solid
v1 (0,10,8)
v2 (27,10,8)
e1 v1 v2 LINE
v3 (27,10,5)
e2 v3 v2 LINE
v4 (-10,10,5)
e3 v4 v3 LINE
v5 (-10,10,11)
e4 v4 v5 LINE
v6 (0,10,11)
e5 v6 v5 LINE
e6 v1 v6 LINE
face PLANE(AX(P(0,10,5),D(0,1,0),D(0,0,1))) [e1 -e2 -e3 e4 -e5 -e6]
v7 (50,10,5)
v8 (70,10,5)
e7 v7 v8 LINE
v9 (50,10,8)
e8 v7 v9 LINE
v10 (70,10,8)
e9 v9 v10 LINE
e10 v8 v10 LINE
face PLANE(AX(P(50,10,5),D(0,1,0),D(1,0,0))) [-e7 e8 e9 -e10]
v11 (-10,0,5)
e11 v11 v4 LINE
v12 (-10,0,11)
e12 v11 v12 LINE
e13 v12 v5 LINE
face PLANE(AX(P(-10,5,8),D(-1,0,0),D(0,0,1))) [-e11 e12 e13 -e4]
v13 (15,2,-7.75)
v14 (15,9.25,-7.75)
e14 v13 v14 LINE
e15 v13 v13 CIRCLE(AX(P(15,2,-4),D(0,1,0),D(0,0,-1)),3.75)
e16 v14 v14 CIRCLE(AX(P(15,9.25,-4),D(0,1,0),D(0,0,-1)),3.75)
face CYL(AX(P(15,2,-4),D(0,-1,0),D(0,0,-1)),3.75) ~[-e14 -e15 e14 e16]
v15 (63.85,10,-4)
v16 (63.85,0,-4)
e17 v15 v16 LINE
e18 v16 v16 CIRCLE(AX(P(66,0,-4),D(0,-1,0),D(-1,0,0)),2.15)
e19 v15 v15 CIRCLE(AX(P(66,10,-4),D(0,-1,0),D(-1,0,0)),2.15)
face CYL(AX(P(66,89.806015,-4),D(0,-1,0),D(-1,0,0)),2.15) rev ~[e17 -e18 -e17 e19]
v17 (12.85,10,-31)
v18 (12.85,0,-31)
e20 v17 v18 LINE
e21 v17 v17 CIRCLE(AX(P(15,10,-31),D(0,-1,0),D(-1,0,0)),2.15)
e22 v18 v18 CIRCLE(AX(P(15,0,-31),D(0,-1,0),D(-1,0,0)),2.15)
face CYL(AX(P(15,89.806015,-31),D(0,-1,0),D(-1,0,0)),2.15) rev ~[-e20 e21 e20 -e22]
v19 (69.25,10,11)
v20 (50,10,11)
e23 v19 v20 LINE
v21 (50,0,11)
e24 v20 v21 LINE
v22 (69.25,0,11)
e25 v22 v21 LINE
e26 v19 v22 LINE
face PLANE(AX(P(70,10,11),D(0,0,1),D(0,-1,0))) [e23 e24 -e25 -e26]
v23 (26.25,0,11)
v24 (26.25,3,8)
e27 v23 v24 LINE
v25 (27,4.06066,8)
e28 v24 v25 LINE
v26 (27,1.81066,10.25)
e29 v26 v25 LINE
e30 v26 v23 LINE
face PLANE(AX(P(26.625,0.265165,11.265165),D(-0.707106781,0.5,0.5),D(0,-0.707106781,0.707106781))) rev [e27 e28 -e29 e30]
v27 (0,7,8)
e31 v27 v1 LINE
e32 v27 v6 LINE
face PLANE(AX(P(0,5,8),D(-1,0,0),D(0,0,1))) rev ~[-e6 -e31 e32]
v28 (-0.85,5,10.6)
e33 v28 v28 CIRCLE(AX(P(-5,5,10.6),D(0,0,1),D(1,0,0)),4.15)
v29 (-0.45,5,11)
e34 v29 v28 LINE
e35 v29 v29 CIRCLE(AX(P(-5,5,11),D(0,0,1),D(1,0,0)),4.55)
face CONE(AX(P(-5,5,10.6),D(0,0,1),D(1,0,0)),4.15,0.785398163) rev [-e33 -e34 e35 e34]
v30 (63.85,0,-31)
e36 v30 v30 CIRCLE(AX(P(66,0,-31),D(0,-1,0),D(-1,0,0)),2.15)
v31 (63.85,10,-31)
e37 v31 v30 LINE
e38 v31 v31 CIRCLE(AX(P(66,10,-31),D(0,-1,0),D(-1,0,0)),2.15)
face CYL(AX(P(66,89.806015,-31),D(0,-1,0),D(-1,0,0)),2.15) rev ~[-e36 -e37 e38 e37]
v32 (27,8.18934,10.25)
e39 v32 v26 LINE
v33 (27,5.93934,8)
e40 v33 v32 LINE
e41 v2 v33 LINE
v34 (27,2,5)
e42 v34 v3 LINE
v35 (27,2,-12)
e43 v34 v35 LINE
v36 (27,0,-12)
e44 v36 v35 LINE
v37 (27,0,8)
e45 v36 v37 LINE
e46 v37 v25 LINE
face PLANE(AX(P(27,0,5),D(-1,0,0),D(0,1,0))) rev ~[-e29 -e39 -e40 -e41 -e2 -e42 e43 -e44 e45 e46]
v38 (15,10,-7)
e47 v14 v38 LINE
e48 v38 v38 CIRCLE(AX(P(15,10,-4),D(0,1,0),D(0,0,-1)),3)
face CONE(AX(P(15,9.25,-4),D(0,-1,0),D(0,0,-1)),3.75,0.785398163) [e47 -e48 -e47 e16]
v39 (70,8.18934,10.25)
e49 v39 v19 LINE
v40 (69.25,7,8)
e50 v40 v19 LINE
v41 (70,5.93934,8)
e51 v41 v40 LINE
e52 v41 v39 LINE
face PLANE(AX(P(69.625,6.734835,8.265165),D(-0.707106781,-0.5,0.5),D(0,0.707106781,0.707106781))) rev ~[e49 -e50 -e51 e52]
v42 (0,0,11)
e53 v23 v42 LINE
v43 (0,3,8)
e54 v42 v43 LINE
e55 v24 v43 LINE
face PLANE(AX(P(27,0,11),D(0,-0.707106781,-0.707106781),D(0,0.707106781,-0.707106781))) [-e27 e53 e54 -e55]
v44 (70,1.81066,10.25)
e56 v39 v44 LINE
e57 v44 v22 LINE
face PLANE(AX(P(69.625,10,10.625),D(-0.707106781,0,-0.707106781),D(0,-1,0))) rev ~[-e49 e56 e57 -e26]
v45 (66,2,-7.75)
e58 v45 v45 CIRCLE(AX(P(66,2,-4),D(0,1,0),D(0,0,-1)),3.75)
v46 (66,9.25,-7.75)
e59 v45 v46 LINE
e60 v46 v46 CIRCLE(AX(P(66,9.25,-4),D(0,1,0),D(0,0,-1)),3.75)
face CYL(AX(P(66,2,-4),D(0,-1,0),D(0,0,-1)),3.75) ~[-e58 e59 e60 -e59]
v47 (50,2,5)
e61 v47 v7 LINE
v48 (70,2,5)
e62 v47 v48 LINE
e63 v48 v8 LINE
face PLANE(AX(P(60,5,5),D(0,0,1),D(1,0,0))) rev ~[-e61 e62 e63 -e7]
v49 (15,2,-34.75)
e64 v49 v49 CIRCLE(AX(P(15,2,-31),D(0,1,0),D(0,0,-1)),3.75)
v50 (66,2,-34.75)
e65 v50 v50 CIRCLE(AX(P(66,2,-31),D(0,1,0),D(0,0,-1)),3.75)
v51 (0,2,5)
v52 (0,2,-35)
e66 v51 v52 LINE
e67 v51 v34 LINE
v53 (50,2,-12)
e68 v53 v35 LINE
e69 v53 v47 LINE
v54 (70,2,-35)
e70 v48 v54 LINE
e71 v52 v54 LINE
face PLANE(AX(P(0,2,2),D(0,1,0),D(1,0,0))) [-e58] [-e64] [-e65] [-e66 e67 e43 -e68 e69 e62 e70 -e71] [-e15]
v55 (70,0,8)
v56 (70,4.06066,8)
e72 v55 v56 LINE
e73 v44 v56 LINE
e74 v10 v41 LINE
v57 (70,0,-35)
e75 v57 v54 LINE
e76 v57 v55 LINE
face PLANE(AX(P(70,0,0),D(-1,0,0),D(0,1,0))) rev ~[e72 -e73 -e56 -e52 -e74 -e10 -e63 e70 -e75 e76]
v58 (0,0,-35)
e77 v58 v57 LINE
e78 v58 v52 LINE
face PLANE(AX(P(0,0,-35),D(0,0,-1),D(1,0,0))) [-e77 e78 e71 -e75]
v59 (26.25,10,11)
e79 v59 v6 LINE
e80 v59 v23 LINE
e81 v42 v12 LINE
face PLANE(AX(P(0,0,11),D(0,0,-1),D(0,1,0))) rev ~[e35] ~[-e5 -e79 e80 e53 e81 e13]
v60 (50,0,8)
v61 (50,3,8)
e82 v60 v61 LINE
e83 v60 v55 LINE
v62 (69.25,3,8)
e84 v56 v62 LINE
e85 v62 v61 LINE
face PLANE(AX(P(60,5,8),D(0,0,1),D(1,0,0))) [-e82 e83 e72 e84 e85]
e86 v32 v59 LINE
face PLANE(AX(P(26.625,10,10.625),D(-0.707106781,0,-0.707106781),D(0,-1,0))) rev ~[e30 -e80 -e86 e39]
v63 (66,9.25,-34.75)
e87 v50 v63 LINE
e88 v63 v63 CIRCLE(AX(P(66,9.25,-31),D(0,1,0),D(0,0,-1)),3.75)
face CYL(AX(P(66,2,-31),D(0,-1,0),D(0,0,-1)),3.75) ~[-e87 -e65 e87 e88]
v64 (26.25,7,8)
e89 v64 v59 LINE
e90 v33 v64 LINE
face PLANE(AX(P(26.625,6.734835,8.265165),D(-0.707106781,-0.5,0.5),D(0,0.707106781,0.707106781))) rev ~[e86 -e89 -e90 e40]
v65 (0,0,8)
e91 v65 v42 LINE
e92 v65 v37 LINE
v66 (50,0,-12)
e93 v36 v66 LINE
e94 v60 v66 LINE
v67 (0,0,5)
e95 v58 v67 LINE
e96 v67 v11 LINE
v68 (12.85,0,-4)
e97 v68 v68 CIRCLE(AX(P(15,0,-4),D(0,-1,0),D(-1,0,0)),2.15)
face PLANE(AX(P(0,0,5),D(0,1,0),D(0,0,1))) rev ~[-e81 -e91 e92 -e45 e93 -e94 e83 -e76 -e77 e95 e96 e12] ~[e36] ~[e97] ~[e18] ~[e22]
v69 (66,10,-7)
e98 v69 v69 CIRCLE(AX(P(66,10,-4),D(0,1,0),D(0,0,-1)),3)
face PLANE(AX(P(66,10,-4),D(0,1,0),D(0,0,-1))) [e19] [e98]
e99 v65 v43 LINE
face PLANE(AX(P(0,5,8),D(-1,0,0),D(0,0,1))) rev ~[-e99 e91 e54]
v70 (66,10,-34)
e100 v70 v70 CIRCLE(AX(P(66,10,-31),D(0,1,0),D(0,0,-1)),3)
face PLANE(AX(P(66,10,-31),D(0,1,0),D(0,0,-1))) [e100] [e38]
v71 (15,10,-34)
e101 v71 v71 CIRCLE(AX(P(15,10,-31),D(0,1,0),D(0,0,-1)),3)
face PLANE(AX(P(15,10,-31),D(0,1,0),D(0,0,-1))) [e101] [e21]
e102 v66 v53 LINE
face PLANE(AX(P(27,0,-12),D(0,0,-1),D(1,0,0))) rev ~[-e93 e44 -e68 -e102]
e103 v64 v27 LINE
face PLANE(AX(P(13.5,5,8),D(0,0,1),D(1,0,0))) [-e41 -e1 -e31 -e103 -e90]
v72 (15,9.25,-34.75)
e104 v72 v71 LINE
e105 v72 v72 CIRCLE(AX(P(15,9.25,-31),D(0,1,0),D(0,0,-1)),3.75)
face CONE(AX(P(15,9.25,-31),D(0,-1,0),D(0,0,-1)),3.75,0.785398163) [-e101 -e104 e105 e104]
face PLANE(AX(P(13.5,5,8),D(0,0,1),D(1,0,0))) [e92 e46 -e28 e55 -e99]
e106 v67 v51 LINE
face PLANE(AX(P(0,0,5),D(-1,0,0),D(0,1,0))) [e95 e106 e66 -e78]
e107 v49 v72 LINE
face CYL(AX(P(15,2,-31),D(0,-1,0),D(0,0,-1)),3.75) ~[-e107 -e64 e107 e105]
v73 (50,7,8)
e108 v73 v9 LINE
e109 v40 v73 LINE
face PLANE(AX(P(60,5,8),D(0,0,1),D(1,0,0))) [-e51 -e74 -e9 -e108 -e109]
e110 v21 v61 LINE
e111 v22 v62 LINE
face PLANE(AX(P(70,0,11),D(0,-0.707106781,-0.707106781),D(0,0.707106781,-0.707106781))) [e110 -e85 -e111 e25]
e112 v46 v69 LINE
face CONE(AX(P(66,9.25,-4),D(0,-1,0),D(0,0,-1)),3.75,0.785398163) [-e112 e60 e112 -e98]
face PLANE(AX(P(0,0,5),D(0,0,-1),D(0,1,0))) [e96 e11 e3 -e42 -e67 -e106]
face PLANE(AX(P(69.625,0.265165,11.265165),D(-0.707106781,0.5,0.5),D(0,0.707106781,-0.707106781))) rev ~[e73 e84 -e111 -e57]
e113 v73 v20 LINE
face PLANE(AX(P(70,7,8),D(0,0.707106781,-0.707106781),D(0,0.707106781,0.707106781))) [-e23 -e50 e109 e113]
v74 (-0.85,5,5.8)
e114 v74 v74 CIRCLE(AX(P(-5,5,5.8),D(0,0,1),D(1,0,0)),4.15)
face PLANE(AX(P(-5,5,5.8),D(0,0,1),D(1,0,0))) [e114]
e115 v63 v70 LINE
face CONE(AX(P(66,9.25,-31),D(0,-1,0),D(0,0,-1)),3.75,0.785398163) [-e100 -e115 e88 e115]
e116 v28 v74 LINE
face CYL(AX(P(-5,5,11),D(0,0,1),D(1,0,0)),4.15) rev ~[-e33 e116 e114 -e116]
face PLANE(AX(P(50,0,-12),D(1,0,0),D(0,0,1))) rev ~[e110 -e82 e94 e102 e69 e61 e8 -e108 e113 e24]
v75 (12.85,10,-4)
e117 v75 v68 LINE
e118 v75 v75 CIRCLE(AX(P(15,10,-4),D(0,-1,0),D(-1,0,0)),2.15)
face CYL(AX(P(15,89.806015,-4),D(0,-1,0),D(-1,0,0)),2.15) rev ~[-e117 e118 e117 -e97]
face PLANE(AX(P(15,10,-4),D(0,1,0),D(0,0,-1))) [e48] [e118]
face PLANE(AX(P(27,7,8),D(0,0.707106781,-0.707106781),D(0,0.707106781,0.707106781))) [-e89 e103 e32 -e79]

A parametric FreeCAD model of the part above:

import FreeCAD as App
import Part
import Sketcher
from FreeCAD import Vector


def edges_at(feature, points):
    """Names of the edges that pass closest to the given points."""
    edges = feature.Shape.Edges
    near = lambda p: min(range(len(edges)), key=lambda i: edges[i].distToShape(Part.Vertex(*p))[0])
    return sorted({f"Edge{near(p) + 1}" for p in points})


def add_polygon(sketch, points):
    """Adds a closed chain of lines whose ends are joined by coincident constraints."""
    first, n = sketch.GeometryCount, len(points)
    for a, b in zip(points, points[1:] + points[:1]):
        sketch.addGeometry(Part.LineSegment(App.Vector(*a, 0), App.Vector(*b, 0)), False)
    for i in range(n):
        sketch.addConstraint(Sketcher.Constraint("Coincident", first + i, 2, first + (i + 1) % n, 1))

doc = App.newDocument("Part")
params = doc.addObject("Spreadsheet::Sheet", "Params")
for row, (alias, value) in enumerate([
    ("sketch1_width", "70 mm"),
    ("sketch1_height", "35 mm"),
    ("pad1_length", "2 mm"),
    ("sketch2_diameter", "7.5 mm"),
    ("pad2_length", "8 mm"),
    ("sketch3_width", "70 mm"),
    ("sketch3_height", "2 mm"),
    ("pad3_length", "2 mm"),
    ("sketch4_diameter", "4.3 mm"),
    ("hole_diameter", "4.3 mm"),
    ("chamfer_size", "0.75 mm"),
    ("sketch5_width", "23 mm"),
    ("sketch5_height", "14 mm"),
    ("sketch6_width", "27 mm"),
    ("sketch6_width2", "20 mm"),
    ("sketch6_height", "2 mm"),
    ("pad4_length", "3 mm"),
    ("sketch7_width", "27 mm"),
    ("sketch7_width2", "20 mm"),
    ("sketch7_height", "10 mm"),
    ("pad5_length", "3 mm"),
    ("sketch8_width", "10 mm"),
    ("sketch8_width2", "4 mm"),
    ("pad6_length", "20 mm"),
    ("sketch9_width", "10 mm"),
    ("sketch9_width2", "4 mm"),
    ("pad7_length", "27 mm"),
    ("chamfer2_size", "0.75 mm"),
    ("sketch10_width", "10 mm"),
    ("sketch10_height", "6 mm"),
    ("pad8_length", "10 mm"),
    ("sketch11_diameter", "8.3 mm"),
    ("pocket2_length", "5.2 mm"),
    ("chamfer3_size", "0.4 mm"),
], start=1):
    params.set(f"A{row}", alias)
    params.set(f"B{row}", "=" + value)
    params.setAlias(f"B{row}", alias)

body = doc.addObject("PartDesign::Body", "Body")

sketch1 = body.newObject("Sketcher::SketchObject", "Sketch")
sketch1.AttachmentSupport = (doc.getObject("XZ_Plane"), [""])
sketch1.MapMode = "FlatFace"
add_polygon(sketch1, [(0, -35), (0, 0), (70, 0), (70, -35)])
sketch1.addConstraint([
    Sketcher.Constraint("Vertical", 0),
    Sketcher.Constraint("Horizontal", 1),
    Sketcher.Constraint("Vertical", 2),
    Sketcher.Constraint("Horizontal", 3),
    Sketcher.Constraint("Coincident", 0, 2, -1, 1),
    Sketcher.Constraint("DistanceX", 1, 1, 1, 2, 70.0),
    Sketcher.Constraint("DistanceY", 0, 1, 0, 2, 35.0),
])
sketch1.setExpression("Constraints[9]", "Params.sketch1_width")
sketch1.setExpression("Constraints[10]", "Params.sketch1_height")
pad1 = body.newObject("PartDesign::Pad", "Pad")
pad1.Profile = sketch1
pad1.setExpression("Length", "Params.pad1_length")
pad1.Reversed = True

sketch2 = body.newObject("Sketcher::SketchObject", "Sketch001")
sketch2.AttachmentSupport = (doc.getObject("XZ_Plane"), [""])
sketch2.MapMode = "FlatFace"
sketch2.AttachmentOffset = App.Placement(Vector(0, 0, -2), App.Rotation())
sketch2.addGeometry([
    Part.Circle(Vector(66, -31, 0), Vector(0, 0, 1), 3.8),
    Part.Circle(Vector(15, -31, 0), Vector(0, 0, 1), 3.8),
    Part.Circle(Vector(15, -4, 0), Vector(0, 0, 1), 3.8),
    Part.Circle(Vector(66, -4, 0), Vector(0, 0, 1), 3.8),
], False)
sketch2.addConstraint([
    Sketcher.Constraint("Equal", 0, 1),
    Sketcher.Constraint("Equal", 1, 2),
    Sketcher.Constraint("Equal", 2, 3),
    Sketcher.Constraint("Horizontal", 0, 3, 1, 3),
    Sketcher.Constraint("Horizontal", 2, 3, 3, 3),
    Sketcher.Constraint("Vertical", 1, 3, 2, 3),
    Sketcher.Constraint("Vertical", 0, 3, 3, 3),
    Sketcher.Constraint("Diameter", 0, 7.5),
    Sketcher.Constraint("DistanceX", -1, 1, 0, 3, 66.0),
    Sketcher.Constraint("DistanceY", 0, 3, -1, 1, 31.0),
    Sketcher.Constraint("DistanceX", -1, 1, 1, 3, 15.0),
    Sketcher.Constraint("DistanceY", 2, 3, -1, 1, 4.0),
])
sketch2.setExpression("Constraints[7]", "Params.sketch2_diameter")
pad2 = body.newObject("PartDesign::Pad", "Pad001")
pad2.Profile = sketch2
pad2.setExpression("Length", "Params.pad2_length")
pad2.Reversed = True

sketch3 = body.newObject("Sketcher::SketchObject", "Sketch002")
sketch3.AttachmentSupport = (doc.getObject("XY_Plane"), [""])
sketch3.MapMode = "FlatFace"
add_polygon(sketch3, [(0, 2), (0, 0), (70, 0), (70, 2)])
sketch3.addConstraint([
    Sketcher.Constraint("Vertical", 0),
    Sketcher.Constraint("Horizontal", 1),
    Sketcher.Constraint("Vertical", 2),
    Sketcher.Constraint("Horizontal", 3),
    Sketcher.Constraint("Coincident", 0, 2, -1, 1),
    Sketcher.Constraint("DistanceX", 1, 1, 1, 2, 70.0),
    Sketcher.Constraint("DistanceY", 0, 2, 0, 1, 2.0),
])
sketch3.setExpression("Constraints[9]", "Params.sketch3_width")
sketch3.setExpression("Constraints[10]", "Params.sketch3_height")
pad3 = body.newObject("PartDesign::Pad", "Pad002")
pad3.Profile = sketch3
pad3.setExpression("Length", "Params.pad3_length")

sketch4 = body.newObject("Sketcher::SketchObject", "Sketch003")
sketch4.AttachmentSupport = (doc.getObject("XZ_Plane"), [""])
sketch4.MapMode = "FlatFace"
sketch4.AttachmentOffset = App.Placement(Vector(0, 0, -10), App.Rotation())
sketch4.addGeometry([
    Part.Circle(Vector(66, -31, 0), Vector(0, 0, 1), 2.1),
    Part.Circle(Vector(15, -31, 0), Vector(0, 0, 1), 2.1),
    Part.Circle(Vector(15, -4, 0), Vector(0, 0, 1), 2.1),
    Part.Circle(Vector(66, -4, 0), Vector(0, 0, 1), 2.1),
], False)
sketch4.addConstraint([
    Sketcher.Constraint("Equal", 0, 1),
    Sketcher.Constraint("Equal", 1, 2),
    Sketcher.Constraint("Equal", 2, 3),
    Sketcher.Constraint("Horizontal", 0, 3, 1, 3),
    Sketcher.Constraint("Horizontal", 2, 3, 3, 3),
    Sketcher.Constraint("Vertical", 1, 3, 2, 3),
    Sketcher.Constraint("Vertical", 0, 3, 3, 3),
    Sketcher.Constraint("Diameter", 0, 4.3),
    Sketcher.Constraint("DistanceX", -1, 1, 0, 3, 66.0),
    Sketcher.Constraint("DistanceY", 0, 3, -1, 1, 31.0),
    Sketcher.Constraint("DistanceX", -1, 1, 1, 3, 15.0),
    Sketcher.Constraint("DistanceY", 2, 3, -1, 1, 4.0),
])
sketch4.setExpression("Constraints[7]", "Params.sketch4_diameter")
doc.recompute()
hole = body.newObject("PartDesign::Hole", "Hole")
hole.Profile = sketch4
hole.ThreadType = "None"
hole.setExpression("Diameter", "Params.hole_diameter")
hole.DepthType = "ThroughAll"
hole.Reversed = True
doc.recompute()

chamfer = body.newObject("PartDesign::Chamfer", "Chamfer")
chamfer.Base = (hole, edges_at(hole, [
    (66, 10, -27.25),
    (15, 10, -27.25),
    (15, 10, -0.25),
    (66, 10, -0.25),
]))
chamfer.setExpression("Size", "Params.chamfer_size")

sketch5 = body.newObject("Sketcher::SketchObject", "Sketch004")
sketch5.AttachmentSupport = (doc.getObject("XZ_Plane"), [""])
sketch5.MapMode = "FlatFace"
add_polygon(sketch5, [(27, 2), (27, -12), (50, -12), (50, 2)])
sketch5.addConstraint([
    Sketcher.Constraint("Vertical", 0),
    Sketcher.Constraint("Horizontal", 1),
    Sketcher.Constraint("Vertical", 2),
    Sketcher.Constraint("Horizontal", 3),
    Sketcher.Constraint("DistanceX", 1, 1, 1, 2, 23.0),
    Sketcher.Constraint("DistanceY", 0, 2, 0, 1, 14.0),
    Sketcher.Constraint("DistanceX", -1, 1, 0, 2, 27.0),
    Sketcher.Constraint("DistanceY", 0, 2, -1, 1, 12.0),
])
sketch5.setExpression("Constraints[8]", "Params.sketch5_width")
sketch5.setExpression("Constraints[9]", "Params.sketch5_height")
pocket1 = body.newObject("PartDesign::Pocket", "Pocket")
pocket1.Profile = sketch5
pocket1.Type = "ThroughAll"

sketch6 = body.newObject("Sketcher::SketchObject", "Sketch005")
sketch6.AttachmentSupport = (doc.getObject("XY_Plane"), [""])
sketch6.MapMode = "FlatFace"
sketch6.AttachmentOffset = App.Placement(Vector(0, 0, 2), App.Rotation())
add_polygon(sketch6, [(0, 2), (0, 0), (27, 0), (27, 2)])
add_polygon(sketch6, [(50, 2), (50, 0), (70, 0), (70, 2)])
sketch6.addConstraint([
    Sketcher.Constraint("Vertical", 0),
    Sketcher.Constraint("Horizontal", 1),
    Sketcher.Constraint("Vertical", 2),
    Sketcher.Constraint("Horizontal", 3),
    Sketcher.Constraint("Vertical", 4),
    Sketcher.Constraint("Horizontal", 5),
    Sketcher.Constraint("Vertical", 6),
    Sketcher.Constraint("Horizontal", 7),
    Sketcher.Constraint("Coincident", 0, 2, -1, 1),
    Sketcher.Constraint("PointOnObject", 4, 2, -1),
    Sketcher.Constraint("Horizontal", 3, 2, 6, 2),
    Sketcher.Constraint("DistanceX", 1, 1, 1, 2, 27.0),
    Sketcher.Constraint("DistanceX", 5, 1, 5, 2, 20.0),
    Sketcher.Constraint("DistanceY", 0, 2, 0, 1, 2.0),
    Sketcher.Constraint("DistanceX", -1, 1, 4, 2, 50.0),
])
sketch6.setExpression("Constraints[19]", "Params.sketch6_width")
sketch6.setExpression("Constraints[20]", "Params.sketch6_width2")
sketch6.setExpression("Constraints[21]", "Params.sketch6_height")
pad4 = body.newObject("PartDesign::Pad", "Pad003")
pad4.Profile = sketch6
pad4.setExpression("Length", "Params.pad4_length")

sketch7 = body.newObject("Sketcher::SketchObject", "Sketch006")
sketch7.AttachmentSupport = (doc.getObject("XY_Plane"), [""])
sketch7.MapMode = "FlatFace"
sketch7.AttachmentOffset = App.Placement(Vector(0, 0, 5), App.Rotation())
add_polygon(sketch7, [(0, 10), (0, 0), (27, 0), (27, 10)])
add_polygon(sketch7, [(50, 10), (50, 0), (70, 0), (70, 10)])
sketch7.addConstraint([
    Sketcher.Constraint("Vertical", 0),
    Sketcher.Constraint("Horizontal", 1),
    Sketcher.Constraint("Vertical", 2),
    Sketcher.Constraint("Horizontal", 3),
    Sketcher.Constraint("Vertical", 4),
    Sketcher.Constraint("Horizontal", 5),
    Sketcher.Constraint("Vertical", 6),
    Sketcher.Constraint("Horizontal", 7),
    Sketcher.Constraint("Coincident", 0, 2, -1, 1),
    Sketcher.Constraint("PointOnObject", 4, 2, -1),
    Sketcher.Constraint("Horizontal", 3, 2, 6, 2),
    Sketcher.Constraint("DistanceX", 1, 1, 1, 2, 27.0),
    Sketcher.Constraint("DistanceX", 5, 1, 5, 2, 20.0),
    Sketcher.Constraint("DistanceY", 0, 2, 0, 1, 10.0),
    Sketcher.Constraint("DistanceX", -1, 1, 4, 2, 50.0),
])
sketch7.setExpression("Constraints[19]", "Params.sketch7_width")
sketch7.setExpression("Constraints[20]", "Params.sketch7_width2")
sketch7.setExpression("Constraints[21]", "Params.sketch7_height")
pad5 = body.newObject("PartDesign::Pad", "Pad004")
pad5.Profile = sketch7
pad5.setExpression("Length", "Params.pad5_length")

sketch8 = body.newObject("Sketcher::SketchObject", "Sketch007")
sketch8.AttachmentSupport = (doc.getObject("YZ_Plane"), [""])
sketch8.MapMode = "FlatFace"
sketch8.AttachmentOffset = App.Placement(Vector(0, 0, 70), App.Rotation())
add_polygon(sketch8, [(7, 8), (10, 11), (0, 11), (3, 8)])
sketch8.addConstraint([
    Sketcher.Constraint("Horizontal", 1),
    Sketcher.Constraint("Horizontal", 3),
    Sketcher.Constraint("PointOnObject", 1, 2, -2),
    Sketcher.Constraint("Perpendicular", 0, 2),
    Sketcher.Constraint("Equal", 0, 2),
    Sketcher.Constraint("DistanceX", 1, 2, 1, 1, 10.0),
    Sketcher.Constraint("DistanceX", 3, 1, 3, 2, 4.0),
    Sketcher.Constraint("DistanceY", -1, 1, 0, 2, 11.0),
])
sketch8.setExpression("Constraints[9]", "Params.sketch8_width")
sketch8.setExpression("Constraints[10]", "Params.sketch8_width2")
pad6 = body.newObject("PartDesign::Pad", "Pad005")
pad6.Profile = sketch8
pad6.setExpression("Length", "Params.pad6_length")
pad6.Reversed = True

sketch9 = body.newObject("Sketcher::SketchObject", "Sketch008")
sketch9.AttachmentSupport = (doc.getObject("YZ_Plane"), [""])
sketch9.MapMode = "FlatFace"
sketch9.AttachmentOffset = App.Placement(Vector(0, 0, 27), App.Rotation())
add_polygon(sketch9, [(7, 8), (10, 11), (0, 11), (3, 8)])
sketch9.addConstraint([
    Sketcher.Constraint("Horizontal", 1),
    Sketcher.Constraint("Horizontal", 3),
    Sketcher.Constraint("PointOnObject", 1, 2, -2),
    Sketcher.Constraint("Perpendicular", 0, 2),
    Sketcher.Constraint("Equal", 0, 2),
    Sketcher.Constraint("DistanceX", 1, 2, 1, 1, 10.0),
    Sketcher.Constraint("DistanceX", 3, 1, 3, 2, 4.0),
    Sketcher.Constraint("DistanceY", -1, 1, 0, 2, 11.0),
])
sketch9.setExpression("Constraints[9]", "Params.sketch9_width")
sketch9.setExpression("Constraints[10]", "Params.sketch9_width2")
pad7 = body.newObject("PartDesign::Pad", "Pad006")
pad7.Profile = sketch9
pad7.setExpression("Length", "Params.pad7_length")
pad7.Reversed = True
doc.recompute()

chamfer2 = body.newObject("PartDesign::Chamfer", "Chamfer001")
chamfer2.Base = (pad7, edges_at(pad7, [
    (70, 8.5, 9.5),
    (70, 5, 11),
    (70, 1.5, 9.5),
    (27, 8.5, 9.5),
    (27, 5, 11),
    (27, 1.5, 9.5),
]))
chamfer2.setExpression("Size", "Params.chamfer2_size")

sketch10 = body.newObject("Sketcher::SketchObject", "Sketch009")
sketch10.AttachmentSupport = (doc.getObject("YZ_Plane"), [""])
sketch10.MapMode = "FlatFace"
add_polygon(sketch10, [(10, 5), (0, 5), (0, 11), (10, 11)])
sketch10.addConstraint([
    Sketcher.Constraint("Horizontal", 0),
    Sketcher.Constraint("Vertical", 1),
    Sketcher.Constraint("Horizontal", 2),
    Sketcher.Constraint("Vertical", 3),
    Sketcher.Constraint("PointOnObject", 0, 2, -2),
    Sketcher.Constraint("DistanceX", 0, 2, 0, 1, 10.0),
    Sketcher.Constraint("DistanceY", 1, 1, 1, 2, 6.0),
    Sketcher.Constraint("DistanceY", -1, 1, 0, 2, 5.0),
])
sketch10.setExpression("Constraints[9]", "Params.sketch10_width")
sketch10.setExpression("Constraints[10]", "Params.sketch10_height")
pad8 = body.newObject("PartDesign::Pad", "Pad007")
pad8.Profile = sketch10
pad8.setExpression("Length", "Params.pad8_length")
pad8.Reversed = True

sketch11 = body.newObject("Sketcher::SketchObject", "Sketch010")
sketch11.AttachmentSupport = (doc.getObject("XY_Plane"), [""])
sketch11.MapMode = "FlatFace"
sketch11.AttachmentOffset = App.Placement(Vector(0, 0, 11), App.Rotation())
sketch11.addGeometry(Part.Circle(Vector(-5, 5, 0), Vector(0, 0, 1), 4.2), False)
sketch11.addConstraint([
    Sketcher.Constraint("Diameter", 0, 8.3),
    Sketcher.Constraint("DistanceX", 0, 3, -1, 1, 5.0),
    Sketcher.Constraint("DistanceY", -1, 1, 0, 3, 5.0),
])
sketch11.setExpression("Constraints[0]", "Params.sketch11_diameter")
pocket2 = body.newObject("PartDesign::Pocket", "Pocket001")
pocket2.Profile = sketch11
pocket2.setExpression("Length", "Params.pocket2_length")
doc.recompute()

chamfer3 = body.newObject("PartDesign::Chamfer", "Chamfer002")
chamfer3.Base = (pocket2, edges_at(pocket2, [(-9.15, 5, 11)]))
chamfer3.setExpression("Size", "Params.chamfer3_size")

doc.recompute()
